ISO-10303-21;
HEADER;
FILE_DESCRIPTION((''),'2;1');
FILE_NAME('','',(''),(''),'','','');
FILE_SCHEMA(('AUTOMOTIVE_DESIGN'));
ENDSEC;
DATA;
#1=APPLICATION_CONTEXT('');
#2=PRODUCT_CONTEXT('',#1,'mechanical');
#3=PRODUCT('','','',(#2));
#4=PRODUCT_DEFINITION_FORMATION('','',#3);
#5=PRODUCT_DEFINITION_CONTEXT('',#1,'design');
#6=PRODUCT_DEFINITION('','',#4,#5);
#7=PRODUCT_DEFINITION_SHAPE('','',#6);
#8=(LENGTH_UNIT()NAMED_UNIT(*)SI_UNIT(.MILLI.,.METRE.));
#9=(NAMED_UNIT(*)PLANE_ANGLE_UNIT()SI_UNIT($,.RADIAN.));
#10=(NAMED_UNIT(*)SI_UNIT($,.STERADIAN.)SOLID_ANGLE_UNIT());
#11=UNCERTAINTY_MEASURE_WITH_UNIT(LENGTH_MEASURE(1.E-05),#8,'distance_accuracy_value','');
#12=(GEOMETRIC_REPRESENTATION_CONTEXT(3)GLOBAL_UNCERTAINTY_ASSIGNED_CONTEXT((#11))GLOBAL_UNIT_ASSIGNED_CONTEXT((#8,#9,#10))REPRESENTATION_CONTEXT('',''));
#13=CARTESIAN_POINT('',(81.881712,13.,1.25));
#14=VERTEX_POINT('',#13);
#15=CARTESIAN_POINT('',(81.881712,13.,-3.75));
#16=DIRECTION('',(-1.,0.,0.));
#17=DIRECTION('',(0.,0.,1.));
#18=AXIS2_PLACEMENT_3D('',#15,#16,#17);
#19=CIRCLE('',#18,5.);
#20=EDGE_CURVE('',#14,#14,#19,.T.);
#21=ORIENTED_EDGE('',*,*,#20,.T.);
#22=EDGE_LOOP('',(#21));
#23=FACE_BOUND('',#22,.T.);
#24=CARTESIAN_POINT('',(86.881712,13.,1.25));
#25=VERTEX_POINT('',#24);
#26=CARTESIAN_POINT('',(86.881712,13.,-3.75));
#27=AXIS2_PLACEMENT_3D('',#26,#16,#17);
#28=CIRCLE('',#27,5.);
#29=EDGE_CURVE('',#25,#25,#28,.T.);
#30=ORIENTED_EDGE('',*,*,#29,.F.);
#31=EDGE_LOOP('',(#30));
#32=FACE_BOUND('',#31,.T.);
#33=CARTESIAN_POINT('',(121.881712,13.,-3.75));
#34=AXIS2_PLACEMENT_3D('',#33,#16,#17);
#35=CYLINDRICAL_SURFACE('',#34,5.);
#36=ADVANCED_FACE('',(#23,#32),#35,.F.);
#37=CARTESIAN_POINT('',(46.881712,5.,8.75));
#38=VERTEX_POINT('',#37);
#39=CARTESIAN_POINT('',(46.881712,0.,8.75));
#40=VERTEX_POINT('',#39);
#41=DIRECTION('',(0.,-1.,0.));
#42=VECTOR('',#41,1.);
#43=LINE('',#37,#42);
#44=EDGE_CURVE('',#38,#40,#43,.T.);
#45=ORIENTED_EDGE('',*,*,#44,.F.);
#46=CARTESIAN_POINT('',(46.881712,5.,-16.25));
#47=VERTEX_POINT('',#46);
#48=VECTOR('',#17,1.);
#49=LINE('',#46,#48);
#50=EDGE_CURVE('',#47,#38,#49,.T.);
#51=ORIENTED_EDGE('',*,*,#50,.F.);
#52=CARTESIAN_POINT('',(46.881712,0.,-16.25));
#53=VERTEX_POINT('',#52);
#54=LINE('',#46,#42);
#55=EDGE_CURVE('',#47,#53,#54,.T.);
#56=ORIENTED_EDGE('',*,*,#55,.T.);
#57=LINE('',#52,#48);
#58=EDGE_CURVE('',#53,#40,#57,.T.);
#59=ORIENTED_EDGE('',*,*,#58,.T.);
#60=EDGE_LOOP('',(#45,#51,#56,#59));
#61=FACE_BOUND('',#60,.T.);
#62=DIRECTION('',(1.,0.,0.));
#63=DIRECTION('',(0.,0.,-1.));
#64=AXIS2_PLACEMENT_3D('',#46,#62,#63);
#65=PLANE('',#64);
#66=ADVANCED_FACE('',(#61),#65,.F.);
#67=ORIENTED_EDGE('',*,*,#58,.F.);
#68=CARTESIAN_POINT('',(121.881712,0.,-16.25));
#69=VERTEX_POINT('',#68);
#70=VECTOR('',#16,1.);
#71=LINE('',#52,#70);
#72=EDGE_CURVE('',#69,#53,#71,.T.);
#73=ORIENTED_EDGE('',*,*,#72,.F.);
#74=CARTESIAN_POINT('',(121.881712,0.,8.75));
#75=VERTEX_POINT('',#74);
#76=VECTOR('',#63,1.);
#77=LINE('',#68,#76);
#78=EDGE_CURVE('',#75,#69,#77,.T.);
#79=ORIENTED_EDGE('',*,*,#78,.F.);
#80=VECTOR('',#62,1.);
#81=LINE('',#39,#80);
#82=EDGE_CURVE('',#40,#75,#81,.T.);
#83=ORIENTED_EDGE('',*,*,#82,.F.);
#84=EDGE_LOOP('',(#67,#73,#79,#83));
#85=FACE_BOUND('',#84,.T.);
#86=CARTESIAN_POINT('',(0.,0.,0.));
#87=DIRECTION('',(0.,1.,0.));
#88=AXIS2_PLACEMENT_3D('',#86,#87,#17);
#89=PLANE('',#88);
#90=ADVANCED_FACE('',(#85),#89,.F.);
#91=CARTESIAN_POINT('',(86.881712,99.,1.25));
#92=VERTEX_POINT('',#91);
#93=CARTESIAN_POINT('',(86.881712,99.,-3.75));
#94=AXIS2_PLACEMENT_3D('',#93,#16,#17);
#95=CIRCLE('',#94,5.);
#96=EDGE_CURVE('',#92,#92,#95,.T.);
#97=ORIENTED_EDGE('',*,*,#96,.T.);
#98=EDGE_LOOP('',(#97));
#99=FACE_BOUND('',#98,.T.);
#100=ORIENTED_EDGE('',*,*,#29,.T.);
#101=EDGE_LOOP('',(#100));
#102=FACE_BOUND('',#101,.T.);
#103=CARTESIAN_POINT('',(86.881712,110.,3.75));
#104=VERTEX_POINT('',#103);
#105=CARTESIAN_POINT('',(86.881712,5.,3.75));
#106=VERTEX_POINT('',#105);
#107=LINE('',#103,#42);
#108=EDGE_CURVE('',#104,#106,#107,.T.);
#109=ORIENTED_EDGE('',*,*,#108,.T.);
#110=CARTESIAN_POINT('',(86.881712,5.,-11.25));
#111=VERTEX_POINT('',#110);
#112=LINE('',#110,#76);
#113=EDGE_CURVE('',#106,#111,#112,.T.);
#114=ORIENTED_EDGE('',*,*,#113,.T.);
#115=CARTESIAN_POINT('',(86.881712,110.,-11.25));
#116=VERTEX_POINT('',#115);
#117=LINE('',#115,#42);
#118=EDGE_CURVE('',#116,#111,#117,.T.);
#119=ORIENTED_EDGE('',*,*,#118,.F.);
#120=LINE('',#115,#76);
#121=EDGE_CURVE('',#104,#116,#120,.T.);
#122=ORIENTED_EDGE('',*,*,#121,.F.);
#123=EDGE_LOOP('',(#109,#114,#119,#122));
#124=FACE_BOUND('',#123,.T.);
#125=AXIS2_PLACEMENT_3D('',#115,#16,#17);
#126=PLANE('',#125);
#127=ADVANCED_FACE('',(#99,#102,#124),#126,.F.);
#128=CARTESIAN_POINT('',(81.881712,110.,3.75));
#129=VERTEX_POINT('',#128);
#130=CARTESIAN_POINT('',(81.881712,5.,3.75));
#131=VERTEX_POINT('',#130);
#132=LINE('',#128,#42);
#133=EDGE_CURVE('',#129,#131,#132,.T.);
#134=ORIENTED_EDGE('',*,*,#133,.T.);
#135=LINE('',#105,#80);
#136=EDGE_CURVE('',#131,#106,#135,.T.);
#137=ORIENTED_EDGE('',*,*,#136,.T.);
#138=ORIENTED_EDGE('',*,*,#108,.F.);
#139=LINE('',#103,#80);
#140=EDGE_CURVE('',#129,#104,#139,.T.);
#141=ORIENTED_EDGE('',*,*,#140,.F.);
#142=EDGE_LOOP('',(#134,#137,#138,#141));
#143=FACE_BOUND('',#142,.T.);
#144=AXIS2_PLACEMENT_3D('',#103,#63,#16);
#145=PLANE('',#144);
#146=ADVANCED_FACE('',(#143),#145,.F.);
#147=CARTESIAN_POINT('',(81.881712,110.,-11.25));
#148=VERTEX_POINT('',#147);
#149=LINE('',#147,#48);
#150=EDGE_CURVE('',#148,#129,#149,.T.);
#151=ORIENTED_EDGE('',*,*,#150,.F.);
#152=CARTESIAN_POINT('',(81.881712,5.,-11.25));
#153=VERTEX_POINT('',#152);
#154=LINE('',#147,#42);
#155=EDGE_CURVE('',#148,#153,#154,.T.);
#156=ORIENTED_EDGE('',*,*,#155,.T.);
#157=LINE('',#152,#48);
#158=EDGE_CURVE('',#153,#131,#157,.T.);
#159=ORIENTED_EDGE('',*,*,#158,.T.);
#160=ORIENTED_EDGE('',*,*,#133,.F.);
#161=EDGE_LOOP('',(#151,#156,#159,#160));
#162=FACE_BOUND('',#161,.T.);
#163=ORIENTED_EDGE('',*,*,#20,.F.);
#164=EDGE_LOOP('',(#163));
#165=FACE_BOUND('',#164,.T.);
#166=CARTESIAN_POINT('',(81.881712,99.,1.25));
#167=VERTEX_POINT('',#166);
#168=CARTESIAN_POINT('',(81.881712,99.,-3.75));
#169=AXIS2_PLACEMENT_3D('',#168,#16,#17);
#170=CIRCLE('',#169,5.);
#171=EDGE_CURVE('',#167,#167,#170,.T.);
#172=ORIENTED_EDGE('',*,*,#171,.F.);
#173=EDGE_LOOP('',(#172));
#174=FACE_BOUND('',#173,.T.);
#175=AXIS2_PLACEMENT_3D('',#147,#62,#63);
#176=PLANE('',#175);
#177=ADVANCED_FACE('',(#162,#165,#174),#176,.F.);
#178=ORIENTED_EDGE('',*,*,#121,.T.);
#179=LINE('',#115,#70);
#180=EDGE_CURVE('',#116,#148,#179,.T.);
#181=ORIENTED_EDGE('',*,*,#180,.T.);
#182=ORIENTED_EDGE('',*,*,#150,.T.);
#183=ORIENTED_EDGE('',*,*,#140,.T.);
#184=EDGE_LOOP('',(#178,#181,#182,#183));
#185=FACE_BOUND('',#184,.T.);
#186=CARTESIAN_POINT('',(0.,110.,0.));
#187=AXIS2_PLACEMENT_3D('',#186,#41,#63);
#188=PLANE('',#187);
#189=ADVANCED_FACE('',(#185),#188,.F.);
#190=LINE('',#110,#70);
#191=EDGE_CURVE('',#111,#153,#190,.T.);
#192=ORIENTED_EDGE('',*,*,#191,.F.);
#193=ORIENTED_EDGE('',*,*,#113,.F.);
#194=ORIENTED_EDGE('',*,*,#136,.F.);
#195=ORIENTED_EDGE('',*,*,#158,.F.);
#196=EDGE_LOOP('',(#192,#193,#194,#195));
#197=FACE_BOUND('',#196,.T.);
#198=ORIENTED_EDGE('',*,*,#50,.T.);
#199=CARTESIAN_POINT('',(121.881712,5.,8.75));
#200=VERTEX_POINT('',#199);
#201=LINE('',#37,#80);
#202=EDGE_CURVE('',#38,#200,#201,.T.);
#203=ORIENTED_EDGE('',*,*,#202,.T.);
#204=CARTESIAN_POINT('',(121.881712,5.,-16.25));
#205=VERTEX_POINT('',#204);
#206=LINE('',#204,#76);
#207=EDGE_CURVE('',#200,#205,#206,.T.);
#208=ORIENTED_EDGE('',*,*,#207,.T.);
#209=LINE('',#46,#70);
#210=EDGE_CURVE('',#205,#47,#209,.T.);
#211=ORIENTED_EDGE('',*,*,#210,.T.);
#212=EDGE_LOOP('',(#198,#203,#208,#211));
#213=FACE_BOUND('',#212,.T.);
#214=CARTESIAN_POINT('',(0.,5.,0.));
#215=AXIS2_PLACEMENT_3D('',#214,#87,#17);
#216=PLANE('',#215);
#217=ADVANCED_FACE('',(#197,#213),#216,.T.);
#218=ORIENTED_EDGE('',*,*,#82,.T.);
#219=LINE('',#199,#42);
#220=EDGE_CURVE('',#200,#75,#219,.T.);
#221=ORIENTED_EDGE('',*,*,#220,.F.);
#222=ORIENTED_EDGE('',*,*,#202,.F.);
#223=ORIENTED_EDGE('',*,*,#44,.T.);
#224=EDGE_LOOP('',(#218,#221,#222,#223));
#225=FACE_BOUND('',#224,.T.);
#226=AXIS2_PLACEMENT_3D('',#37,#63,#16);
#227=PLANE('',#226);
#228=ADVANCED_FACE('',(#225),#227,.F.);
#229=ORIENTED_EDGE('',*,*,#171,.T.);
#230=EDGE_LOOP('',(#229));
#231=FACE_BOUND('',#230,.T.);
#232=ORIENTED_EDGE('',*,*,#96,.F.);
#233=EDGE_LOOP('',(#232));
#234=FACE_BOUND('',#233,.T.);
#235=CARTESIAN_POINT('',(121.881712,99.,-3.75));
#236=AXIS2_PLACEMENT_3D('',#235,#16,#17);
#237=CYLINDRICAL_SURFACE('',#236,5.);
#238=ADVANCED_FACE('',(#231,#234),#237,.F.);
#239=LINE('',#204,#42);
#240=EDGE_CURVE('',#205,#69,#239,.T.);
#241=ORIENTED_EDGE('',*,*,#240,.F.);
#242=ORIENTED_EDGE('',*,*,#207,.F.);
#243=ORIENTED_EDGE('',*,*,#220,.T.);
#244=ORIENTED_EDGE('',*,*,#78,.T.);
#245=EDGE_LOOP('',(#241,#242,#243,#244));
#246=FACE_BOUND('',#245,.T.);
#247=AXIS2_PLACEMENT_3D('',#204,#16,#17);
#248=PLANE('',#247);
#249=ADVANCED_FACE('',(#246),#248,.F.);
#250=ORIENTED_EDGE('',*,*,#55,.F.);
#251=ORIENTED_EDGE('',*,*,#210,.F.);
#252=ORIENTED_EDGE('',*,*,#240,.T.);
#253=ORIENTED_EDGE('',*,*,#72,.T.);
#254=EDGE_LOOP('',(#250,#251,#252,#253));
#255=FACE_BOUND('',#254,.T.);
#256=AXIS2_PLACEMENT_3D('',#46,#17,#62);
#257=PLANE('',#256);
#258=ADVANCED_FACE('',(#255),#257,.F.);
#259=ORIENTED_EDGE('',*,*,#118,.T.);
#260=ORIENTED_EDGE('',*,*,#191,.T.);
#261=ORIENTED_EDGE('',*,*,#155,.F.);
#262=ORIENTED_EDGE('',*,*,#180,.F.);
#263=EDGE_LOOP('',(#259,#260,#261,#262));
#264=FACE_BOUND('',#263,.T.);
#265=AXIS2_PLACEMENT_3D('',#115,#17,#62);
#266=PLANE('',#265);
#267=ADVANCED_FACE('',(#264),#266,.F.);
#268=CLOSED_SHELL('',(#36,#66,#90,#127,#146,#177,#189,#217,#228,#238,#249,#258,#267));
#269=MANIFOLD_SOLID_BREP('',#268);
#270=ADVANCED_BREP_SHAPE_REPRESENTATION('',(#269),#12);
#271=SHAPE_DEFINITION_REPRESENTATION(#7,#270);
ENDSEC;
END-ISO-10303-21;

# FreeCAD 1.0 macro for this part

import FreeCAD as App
import Part
import Sketcher

V = App.Vector


def add_polygon(sketch, points):
    """Adds a closed chain of lines whose ends are joined by coincident constraints."""
    first, n = sketch.GeometryCount, len(points)
    for a, b in zip(points, points[1:] + points[:1]):
        sketch.addGeometry(Part.LineSegment(App.Vector(*a, 0), App.Vector(*b, 0)), False)
    for i in range(n):
        sketch.addConstraint(Sketcher.Constraint("Coincident", first + i, 2, first + (i + 1) % n, 1))

doc = App.newDocument("Part")
body = doc.addObject("PartDesign::Body", "Body")

# Sketch on XZ plane
sketch1 = body.newObject("Sketcher::SketchObject", "Sketch")
sketch1.AttachmentSupport = (doc.getObject("XZ_Plane"), [""])
sketch1.MapMode = "FlatFace"
add_polygon(sketch1, [(46.881712, -16.25), (46.881712, 8.75), (121.881712, 8.75), (121.881712, -16.25)])  # lines 0-3
sketch1.addConstraint([
    Sketcher.Constraint("Vertical", 0),
    Sketcher.Constraint("Horizontal", 1),
    Sketcher.Constraint("Vertical", 2),
    Sketcher.Constraint("Horizontal", 3),
    Sketcher.Constraint("DistanceX", 1, 1, 1, 2, 75.0),
    Sketcher.Constraint("DistanceY", 0, 1, 0, 2, 25.0),
    Sketcher.Constraint("DistanceY", -1, 1, 0, 2, 8.75),
    Sketcher.Constraint("DistanceX", -1, 1, 0, 2, 46.881712),
])
pad1 = body.newObject("PartDesign::Pad", "Pad")
pad1.Profile = sketch1
pad1.Length = 5
pad1.Reversed = True

# Sketch on XZ plane
sketch2 = body.newObject("Sketcher::SketchObject", "Sketch001")
sketch2.AttachmentSupport = (doc.getObject("XZ_Plane"), [""])
sketch2.MapMode = "FlatFace"
sketch2.AttachmentOffset = App.Placement(V(0, 0, -5), App.Rotation())
add_polygon(sketch2, [(81.881712, -11.25), (81.881712, 3.75), (86.881712, 3.75), (86.881712, -11.25)])  # lines 0-3
sketch2.addConstraint([
    Sketcher.Constraint("Vertical", 0),
    Sketcher.Constraint("Horizontal", 1),
    Sketcher.Constraint("Vertical", 2),
    Sketcher.Constraint("Horizontal", 3),
    Sketcher.Constraint("DistanceX", 1, 1, 1, 2, 5.0),
    Sketcher.Constraint("DistanceY", 0, 1, 0, 2, 15.0),
    Sketcher.Constraint("DistanceY", -1, 1, 0, 2, 3.75),
    Sketcher.Constraint("DistanceX", -1, 1, 0, 2, 81.881712),
])
pad2 = body.newObject("PartDesign::Pad", "Pad001")
pad2.Profile = sketch2
pad2.Length = 105
pad2.Reversed = True

# Sketch on YZ plane
sketch3 = body.newObject("Sketcher::SketchObject", "Sketch002")
sketch3.AttachmentSupport = (doc.getObject("YZ_Plane"), [""])
sketch3.MapMode = "FlatFace"
sketch3.AttachmentOffset = App.Placement(V(0, 0, 81.881712), App.Rotation())
sketch3.addGeometry(Part.Circle(V(13, -3.75, 0), V(0, 0, 1), 5), False)
sketch3.addConstraint([
    Sketcher.Constraint("Diameter", 0, 10.0),
    Sketcher.Constraint("DistanceX", -1, 1, 0, 3, 13.0),
    Sketcher.Constraint("DistanceY", 0, 3, -1, 1, 3.75),
])
pocket1 = body.newObject("PartDesign::Pocket", "Pocket")
pocket1.Profile = sketch3
pocket1.Type = "ThroughAll"
pocket1.Reversed = True

# Sketch on YZ plane
sketch4 = body.newObject("Sketcher::SketchObject", "Sketch003")
sketch4.AttachmentSupport = (doc.getObject("YZ_Plane"), [""])
sketch4.MapMode = "FlatFace"
sketch4.AttachmentOffset = App.Placement(V(0, 0, 81.881712), App.Rotation())
sketch4.addGeometry(Part.Circle(V(99, -3.75, 0), V(0, 0, 1), 5), False)
sketch4.addConstraint([
    Sketcher.Constraint("Diameter", 0, 10.0),
    Sketcher.Constraint("DistanceX", -1, 1, 0, 3, 99.0),
    Sketcher.Constraint("DistanceY", 0, 3, -1, 1, 3.75),
])
pocket2 = body.newObject("PartDesign::Pocket", "Pocket001")
pocket2.Profile = sketch4
pocket2.Type = "ThroughAll"
pocket2.Reversed = True

doc.recompute()
